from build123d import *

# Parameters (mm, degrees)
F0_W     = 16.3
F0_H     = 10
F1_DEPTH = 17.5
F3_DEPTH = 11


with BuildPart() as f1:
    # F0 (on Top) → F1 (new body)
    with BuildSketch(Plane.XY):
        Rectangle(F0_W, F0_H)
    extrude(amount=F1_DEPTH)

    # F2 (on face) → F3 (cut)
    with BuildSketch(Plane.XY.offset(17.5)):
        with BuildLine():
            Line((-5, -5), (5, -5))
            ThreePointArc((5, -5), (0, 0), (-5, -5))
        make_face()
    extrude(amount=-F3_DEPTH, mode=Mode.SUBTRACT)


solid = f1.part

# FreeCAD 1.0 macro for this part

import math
import FreeCAD as App
import Part
import Sketcher
from FreeCAD import Vector

doc = App.newDocument("Part")
body = doc.addObject("PartDesign::Body", "Body")

# Sketch on XY plane
sketch1 = body.newObject("Sketcher::SketchObject", "Sketch")
sketch1.AttachmentSupport = (doc.getObject("XY_Plane"), [""])
sketch1.MapMode = "FlatFace"
sketch1.addGeometry([
    Part.LineSegment(Vector(-8, 5, 0), Vector(-8, -5, 0)),
    Part.LineSegment(Vector(-8, -5, 0), Vector(8, -5, 0)),
    Part.LineSegment(Vector(8, -5, 0), Vector(8, 5, 0)),
    Part.LineSegment(Vector(8, 5, 0), Vector(-8, 5, 0)),
], False)
sketch1.addConstraint([
    Sketcher.Constraint("Coincident", 0, 2, 1, 1),
    Sketcher.Constraint("Coincident", 1, 2, 2, 1),
    Sketcher.Constraint("Coincident", 2, 2, 3, 1),
    Sketcher.Constraint("Coincident", 3, 2, 0, 1),
    Sketcher.Constraint("Vertical", 0),
    Sketcher.Constraint("Horizontal", 1),
    Sketcher.Constraint("Vertical", 2),
    Sketcher.Constraint("Horizontal", 3),
    Sketcher.Constraint("Symmetric", 0, 2, 2, 2, -1, 1),
    Sketcher.Constraint("DistanceY", 0, 2, 0, 1, 10.0),
    Sketcher.Constraint("DistanceX", 1, 1, 1, 2, 16.3),
])
pad1 = body.newObject("PartDesign::Pad", "Pad")
pad1.Profile = sketch1
pad1.Length = 17.5

# Sketch on XY plane
sketch2 = body.newObject("Sketcher::SketchObject", "Sketch001")
sketch2.AttachmentSupport = (doc.getObject("XY_Plane"), [""])
sketch2.MapMode = "FlatFace"
sketch2.AttachmentOffset = App.Placement(Vector(0, 0, 17.5), App.Rotation())
sketch2.addGeometry([
    Part.LineSegment(Vector(-5, -5, 0), Vector(5, -5, 0)),
    Part.ArcOfCircle(Part.Circle(Vector(0, -5, 0), Vector(0, 0, 1), 5), math.radians(0), math.radians(180)),
], False)
sketch2.addConstraint([
    Sketcher.Constraint("Coincident", 0, 1, 1, 2),
    Sketcher.Constraint("Coincident", 1, 1, 0, 2),
    Sketcher.Constraint("Horizontal", 0),
    Sketcher.Constraint("PointOnObject", 1, 3, -2),
    Sketcher.Constraint("Horizontal", 1, 3, 0, 1),
    Sketcher.Constraint("Radius", 1, 5.0),
    Sketcher.Constraint("DistanceY", 1, 3, -1, 1, 5.0),
])
pocket1 = body.newObject("PartDesign::Pocket", "Pocket")
pocket1.Profile = sketch2
pocket1.Length = 11

doc.recompute()
